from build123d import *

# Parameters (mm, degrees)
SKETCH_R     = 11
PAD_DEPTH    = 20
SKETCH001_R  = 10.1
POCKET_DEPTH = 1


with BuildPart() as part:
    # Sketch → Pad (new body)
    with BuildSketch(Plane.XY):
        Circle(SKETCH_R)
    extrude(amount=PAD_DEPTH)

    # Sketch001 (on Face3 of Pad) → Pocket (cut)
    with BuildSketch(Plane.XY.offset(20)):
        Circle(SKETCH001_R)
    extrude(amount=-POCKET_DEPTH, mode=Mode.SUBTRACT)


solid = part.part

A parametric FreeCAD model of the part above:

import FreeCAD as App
import Part
import Sketcher

doc = App.newDocument("Part")
params = doc.addObject("Spreadsheet::Sheet", "Params")
for row, (alias, value) in enumerate([
    ("sketch1_diameter", "22 mm"),
    ("pad1_length", "20 mm"),
    ("sketch2_diameter", "20.2 mm"),
    ("pocket1_length", "1 mm"),
], start=1):
    params.set(f"A{row}", alias)
    params.set(f"B{row}", "=" + value)
    params.setAlias(f"B{row}", alias)

body = doc.addObject("PartDesign::Body", "Body")

sketch1 = body.newObject("Sketcher::SketchObject", "Sketch")
sketch1.AttachmentSupport = (doc.getObject("XY_Plane"), [""])
sketch1.MapMode = "FlatFace"
sketch1.addGeometry(Part.Circle(App.Vector(0, 0, 0), App.Vector(0, 0, 1), 11), False)
sketch1.addConstraint([
    Sketcher.Constraint("Coincident", 0, 3, -1, 1),
    Sketcher.Constraint("Diameter", 0, 22.0),
])
sketch1.setExpression("Constraints[1]", "Params.sketch1_diameter")
pad1 = body.newObject("PartDesign::Pad", "Pad")
pad1.Profile = sketch1
pad1.setExpression("Length", "Params.pad1_length")

sketch2 = body.newObject("Sketcher::SketchObject", "Sketch001")
sketch2.AttachmentSupport = (doc.getObject("XY_Plane"), [""])
sketch2.MapMode = "FlatFace"
sketch2.AttachmentOffset = App.Placement(App.Vector(0, 0, 20), App.Rotation())
sketch2.addGeometry(Part.Circle(App.Vector(0, 0, 0), App.Vector(0, 0, 1), 10), False)
sketch2.addConstraint([
    Sketcher.Constraint("Coincident", 0, 3, -1, 1),
    Sketcher.Constraint("Diameter", 0, 20.2),
])
sketch2.setExpression("Constraints[1]", "Params.sketch2_diameter")
pocket1 = body.newObject("PartDesign::Pocket", "Pocket")
pocket1.Profile = sketch2
pocket1.setExpression("Length", "Params.pocket1_length")

doc.recompute()
